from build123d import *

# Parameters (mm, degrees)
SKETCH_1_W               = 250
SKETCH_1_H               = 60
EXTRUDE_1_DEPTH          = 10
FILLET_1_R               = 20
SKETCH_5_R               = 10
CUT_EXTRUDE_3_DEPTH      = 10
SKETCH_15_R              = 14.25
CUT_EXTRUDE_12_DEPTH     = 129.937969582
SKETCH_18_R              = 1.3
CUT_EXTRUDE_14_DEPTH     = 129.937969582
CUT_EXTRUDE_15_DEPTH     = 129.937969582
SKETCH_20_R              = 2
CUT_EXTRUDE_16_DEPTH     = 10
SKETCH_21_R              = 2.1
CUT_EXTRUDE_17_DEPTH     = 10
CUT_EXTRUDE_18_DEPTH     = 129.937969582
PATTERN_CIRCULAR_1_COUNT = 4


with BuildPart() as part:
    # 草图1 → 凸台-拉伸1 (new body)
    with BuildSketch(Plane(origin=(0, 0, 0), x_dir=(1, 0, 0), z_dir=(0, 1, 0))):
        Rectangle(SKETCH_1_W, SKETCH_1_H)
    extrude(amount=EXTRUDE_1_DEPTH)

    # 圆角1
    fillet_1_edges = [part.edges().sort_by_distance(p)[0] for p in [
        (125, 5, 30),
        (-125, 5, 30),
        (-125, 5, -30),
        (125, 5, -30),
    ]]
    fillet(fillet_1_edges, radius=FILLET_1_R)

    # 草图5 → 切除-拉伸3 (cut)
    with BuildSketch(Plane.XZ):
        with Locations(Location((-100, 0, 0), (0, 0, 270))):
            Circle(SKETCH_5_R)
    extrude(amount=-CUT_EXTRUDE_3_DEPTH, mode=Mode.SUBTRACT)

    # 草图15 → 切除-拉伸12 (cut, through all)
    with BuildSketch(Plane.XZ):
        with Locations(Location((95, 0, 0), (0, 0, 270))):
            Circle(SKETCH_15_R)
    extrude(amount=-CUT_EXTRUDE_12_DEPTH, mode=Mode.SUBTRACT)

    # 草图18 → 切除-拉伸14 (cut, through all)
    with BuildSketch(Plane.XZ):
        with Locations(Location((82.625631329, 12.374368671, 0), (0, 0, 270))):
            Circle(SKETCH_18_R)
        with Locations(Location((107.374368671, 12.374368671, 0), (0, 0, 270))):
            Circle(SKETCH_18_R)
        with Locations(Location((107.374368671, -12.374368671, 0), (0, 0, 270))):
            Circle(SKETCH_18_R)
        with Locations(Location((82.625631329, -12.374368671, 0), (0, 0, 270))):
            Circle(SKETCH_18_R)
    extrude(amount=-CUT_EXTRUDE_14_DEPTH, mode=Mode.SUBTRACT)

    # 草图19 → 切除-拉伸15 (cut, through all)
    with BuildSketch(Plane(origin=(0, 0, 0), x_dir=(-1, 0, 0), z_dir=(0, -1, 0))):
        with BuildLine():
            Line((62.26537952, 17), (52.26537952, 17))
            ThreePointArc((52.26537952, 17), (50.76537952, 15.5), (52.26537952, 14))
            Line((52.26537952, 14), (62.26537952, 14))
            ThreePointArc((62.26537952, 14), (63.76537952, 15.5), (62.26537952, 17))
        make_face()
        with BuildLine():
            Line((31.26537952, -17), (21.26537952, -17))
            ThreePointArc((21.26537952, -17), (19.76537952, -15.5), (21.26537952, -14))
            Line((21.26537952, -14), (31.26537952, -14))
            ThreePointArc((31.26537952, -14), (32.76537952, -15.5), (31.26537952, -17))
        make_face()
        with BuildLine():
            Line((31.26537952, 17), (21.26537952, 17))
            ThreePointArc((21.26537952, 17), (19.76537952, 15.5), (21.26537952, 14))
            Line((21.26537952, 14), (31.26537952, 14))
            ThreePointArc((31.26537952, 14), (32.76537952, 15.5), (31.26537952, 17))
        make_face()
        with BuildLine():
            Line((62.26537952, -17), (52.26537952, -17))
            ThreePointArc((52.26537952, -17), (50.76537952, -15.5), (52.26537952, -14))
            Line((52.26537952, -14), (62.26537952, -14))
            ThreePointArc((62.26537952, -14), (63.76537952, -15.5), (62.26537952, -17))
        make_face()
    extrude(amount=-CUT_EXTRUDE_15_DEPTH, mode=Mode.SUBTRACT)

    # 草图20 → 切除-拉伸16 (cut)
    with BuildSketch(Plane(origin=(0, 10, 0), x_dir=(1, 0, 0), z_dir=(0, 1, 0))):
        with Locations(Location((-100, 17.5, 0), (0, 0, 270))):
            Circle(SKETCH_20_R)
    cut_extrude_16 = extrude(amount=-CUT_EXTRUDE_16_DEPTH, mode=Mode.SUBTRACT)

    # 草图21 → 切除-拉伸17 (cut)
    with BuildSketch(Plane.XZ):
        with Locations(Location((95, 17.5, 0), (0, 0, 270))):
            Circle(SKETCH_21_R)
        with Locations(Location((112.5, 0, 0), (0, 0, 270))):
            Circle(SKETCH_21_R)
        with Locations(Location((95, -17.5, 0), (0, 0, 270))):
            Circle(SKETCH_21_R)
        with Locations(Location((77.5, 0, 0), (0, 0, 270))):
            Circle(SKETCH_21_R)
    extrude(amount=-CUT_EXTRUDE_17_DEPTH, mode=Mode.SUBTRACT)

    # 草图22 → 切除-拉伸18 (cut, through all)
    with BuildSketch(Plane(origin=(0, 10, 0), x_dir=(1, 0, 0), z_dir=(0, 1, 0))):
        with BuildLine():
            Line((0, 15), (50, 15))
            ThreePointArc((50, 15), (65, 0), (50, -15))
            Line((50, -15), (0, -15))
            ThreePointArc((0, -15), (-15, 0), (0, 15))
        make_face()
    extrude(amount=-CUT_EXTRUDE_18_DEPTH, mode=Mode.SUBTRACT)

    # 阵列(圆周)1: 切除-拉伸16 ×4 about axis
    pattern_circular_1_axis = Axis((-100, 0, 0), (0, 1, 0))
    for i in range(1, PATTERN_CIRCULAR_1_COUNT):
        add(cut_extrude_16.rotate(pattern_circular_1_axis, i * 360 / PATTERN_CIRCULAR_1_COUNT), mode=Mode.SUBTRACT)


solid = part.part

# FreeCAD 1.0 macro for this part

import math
import FreeCAD as App
import Part
import Sketcher
from FreeCAD import Vector


def edges_at(feature, points):
    """Names of the edges that pass closest to the given points."""
    edges = feature.Shape.Edges
    near = lambda p: min(range(len(edges)), key=lambda i: edges[i].distToShape(Part.Vertex(*p))[0])
    return sorted({f"Edge{near(p) + 1}" for p in points})


def add_polygon(sketch, points):
    """Adds a closed chain of lines whose ends are joined by coincident constraints."""
    first, n = sketch.GeometryCount, len(points)
    for a, b in zip(points, points[1:] + points[:1]):
        sketch.addGeometry(Part.LineSegment(App.Vector(*a, 0), App.Vector(*b, 0)), False)
    for i in range(n):
        sketch.addConstraint(Sketcher.Constraint("Coincident", first + i, 2, first + (i + 1) % n, 1))

doc = App.newDocument("Part")
body = doc.addObject("PartDesign::Body", "Body")

# Sketch on XZ plane
sketch1 = body.newObject("Sketcher::SketchObject", "Sketch")
sketch1.AttachmentSupport = (doc.getObject("XZ_Plane"), [""])
sketch1.MapMode = "FlatFace"
add_polygon(sketch1, [(-125, -30), (-125, 30), (125, 30), (125, -30)])  # lines 0-3
sketch1.addConstraint([
    Sketcher.Constraint("Vertical", 0),
    Sketcher.Constraint("Horizontal", 1),
    Sketcher.Constraint("Vertical", 2),
    Sketcher.Constraint("Horizontal", 3),
    Sketcher.Constraint("Symmetric", 0, 2, 2, 2, -1, 1),
    Sketcher.Constraint("DistanceX", 1, 1, 1, 2, 250.0),
    Sketcher.Constraint("DistanceY", 0, 1, 0, 2, 60.0),
])
pad1 = body.newObject("PartDesign::Pad", "Pad")
pad1.Profile = sketch1
pad1.Length = 10
pad1.Reversed = True
doc.recompute()

fillet = body.newObject("PartDesign::Fillet", "Fillet")
fillet.Base = (pad1, edges_at(pad1, [
    (125, 5, 30),
    (-125, 5, 30),
    (-125, 5, -30),
    (125, 5, -30),
]))
fillet.Radius = 20

# Sketch on XZ plane
sketch2 = body.newObject("Sketcher::SketchObject", "Sketch001")
sketch2.AttachmentSupport = (doc.getObject("XZ_Plane"), [""])
sketch2.MapMode = "FlatFace"
sketch2.addGeometry(Part.Circle(Vector(-100, 0, 0), Vector(0, 0, 1), 10), False)
sketch2.addConstraint([
    Sketcher.Constraint("PointOnObject", 0, 3, -1),
    Sketcher.Constraint("Diameter", 0, 20.0),
    Sketcher.Constraint("DistanceX", 0, 3, -1, 1, 100.0),
])
pocket1 = body.newObject("PartDesign::Pocket", "Pocket")
pocket1.Profile = sketch2
pocket1.Length = 10

# Sketch on XZ plane
sketch3 = body.newObject("Sketcher::SketchObject", "Sketch002")
sketch3.AttachmentSupport = (doc.getObject("XZ_Plane"), [""])
sketch3.MapMode = "FlatFace"
sketch3.addGeometry(Part.Circle(Vector(95, 0, 0), Vector(0, 0, 1), 14), False)
sketch3.addConstraint([
    Sketcher.Constraint("PointOnObject", 0, 3, -1),
    Sketcher.Constraint("Diameter", 0, 28.5),
    Sketcher.Constraint("DistanceX", -1, 1, 0, 3, 95.0),
])
pocket2 = body.newObject("PartDesign::Pocket", "Pocket001")
pocket2.Profile = sketch3
pocket2.Type = "ThroughAll"

# Sketch on XZ plane
sketch4 = body.newObject("Sketcher::SketchObject", "Sketch003")
sketch4.AttachmentSupport = (doc.getObject("XZ_Plane"), [""])
sketch4.MapMode = "FlatFace"
sketch4.addGeometry([
    Part.Circle(Vector(82.6, 12.4, 0), Vector(0, 0, 1), 1.3),
    Part.Circle(Vector(107.4, 12.4, 0), Vector(0, 0, 1), 1.3),
    Part.Circle(Vector(107.4, -12.4, 0), Vector(0, 0, 1), 1.3),
    Part.Circle(Vector(82.6, -12.4, 0), Vector(0, 0, 1), 1.3),
], False)
sketch4.addConstraint([
    Sketcher.Constraint("Equal", 0, 1),
    Sketcher.Constraint("Equal", 1, 2),
    Sketcher.Constraint("Equal", 2, 3),
    Sketcher.Constraint("Symmetric", 1, 3, 2, 3, -1),
    Sketcher.Constraint("Symmetric", 0, 3, 3, 3, -1),
    Sketcher.Constraint("Horizontal", 0, 3, 1, 3),
    Sketcher.Constraint("Diameter", 0, 2.6),
    Sketcher.Constraint("DistanceX", -1, 1, 0, 3, 82.625631),
    Sketcher.Constraint("DistanceY", -1, 1, 0, 3, 12.374369),
    Sketcher.Constraint("DistanceX", -1, 1, 1, 3, 107.374369),
])
pocket3 = body.newObject("PartDesign::Pocket", "Pocket002")
pocket3.Profile = sketch4
pocket3.Type = "ThroughAll"

# Sketch on XZ plane
sketch5 = body.newObject("Sketcher::SketchObject", "Sketch004")
sketch5.AttachmentSupport = (doc.getObject("XZ_Plane"), [""])
sketch5.MapMode = "FlatFace"
sketch5.addGeometry([
    Part.LineSegment(Vector(-62.3, -17, 0), Vector(-52.3, -17, 0)),  # 0
    Part.ArcOfCircle(Part.Circle(Vector(-52.3, -15.5, 0), Vector(0, 0, 1), 1.5), math.radians(-90), math.radians(90)),  # 1
    Part.LineSegment(Vector(-52.3, -14, 0), Vector(-62.3, -14, 0)),  # 2
    Part.ArcOfCircle(Part.Circle(Vector(-62.3, -15.5, 0), Vector(0, 0, 1), 1.5), math.radians(90), math.radians(270)),  # 3
    Part.LineSegment(Vector(-21.3, 17, 0), Vector(-31.3, 17, 0)),  # 4
    Part.ArcOfCircle(Part.Circle(Vector(-31.3, 15.5, 0), Vector(0, 0, 1), 1.5), math.radians(90), math.radians(270)),  # 5
    Part.LineSegment(Vector(-31.3, 14, 0), Vector(-21.3, 14, 0)),  # 6
    Part.ArcOfCircle(Part.Circle(Vector(-21.3, 15.5, 0), Vector(0, 0, 1), 1.5), math.radians(-90), math.radians(90)),  # 7
    Part.LineSegment(Vector(-31.3, -17, 0), Vector(-21.3, -17, 0)),  # 8
    Part.ArcOfCircle(Part.Circle(Vector(-21.3, -15.5, 0), Vector(0, 0, 1), 1.5), math.radians(-90), math.radians(90)),  # 9
    Part.LineSegment(Vector(-21.3, -14, 0), Vector(-31.3, -14, 0)),  # 10
    Part.ArcOfCircle(Part.Circle(Vector(-31.3, -15.5, 0), Vector(0, 0, 1), 1.5), math.radians(90), math.radians(270)),  # 11
    Part.LineSegment(Vector(-52.3, 17, 0), Vector(-62.3, 17, 0)),  # 12
    Part.ArcOfCircle(Part.Circle(Vector(-62.3, 15.5, 0), Vector(0, 0, 1), 1.5), math.radians(90), math.radians(270)),  # 13
    Part.LineSegment(Vector(-62.3, 14, 0), Vector(-52.3, 14, 0)),  # 14
    Part.ArcOfCircle(Part.Circle(Vector(-52.3, 15.5, 0), Vector(0, 0, 1), 1.5), math.radians(-90), math.radians(90)),  # 15
], False)
sketch5.addConstraint([
    Sketcher.Constraint("Tangent", 0, 2, 1, 1),
    Sketcher.Constraint("Tangent", 1, 2, 2, 1),
    Sketcher.Constraint("Tangent", 2, 2, 3, 1),
    Sketcher.Constraint("Tangent", 3, 2, 0, 1),
    Sketcher.Constraint("Tangent", 4, 2, 5, 1),
    Sketcher.Constraint("Tangent", 5, 2, 6, 1),
    Sketcher.Constraint("Tangent", 6, 2, 7, 1),
    Sketcher.Constraint("Tangent", 7, 2, 4, 1),
    Sketcher.Constraint("Tangent", 8, 2, 9, 1),
    Sketcher.Constraint("Tangent", 9, 2, 10, 1),
    Sketcher.Constraint("Tangent", 10, 2, 11, 1),
    Sketcher.Constraint("Tangent", 11, 2, 8, 1),
    Sketcher.Constraint("Tangent", 12, 2, 13, 1),
    Sketcher.Constraint("Tangent", 13, 2, 14, 1),
    Sketcher.Constraint("Tangent", 14, 2, 15, 1),
    Sketcher.Constraint("Tangent", 15, 2, 12, 1),
    Sketcher.Constraint("Horizontal", 0),
    Sketcher.Constraint("Horizontal", 2),
    Sketcher.Constraint("Horizontal", 4),
    Sketcher.Constraint("Horizontal", 6),
    Sketcher.Constraint("Horizontal", 8),
    Sketcher.Constraint("Horizontal", 10),
    Sketcher.Constraint("Horizontal", 12),
    Sketcher.Constraint("Horizontal", 14),
    Sketcher.Constraint("Equal", 3, 5),
    Sketcher.Constraint("Equal", 7, 9),
    Sketcher.Constraint("Equal", 11, 13),
    Sketcher.Constraint("Symmetric", 7, 3, 9, 3, -1),
    Sketcher.Constraint("Symmetric", 3, 3, 13, 3, -1),
    Sketcher.Constraint("Horizontal", 3, 3, 9, 3),
    Sketcher.Constraint("Vertical", 5, 3, 11, 3),
    Sketcher.Constraint("Vertical", 1, 3, 15, 3),
    Sketcher.Constraint("Equal", 2, 4),
    Sketcher.Constraint("Radius", 1, 1.5),
    Sketcher.Constraint("DistanceX", 0, 1, 0, 2, 10.0),
    Sketcher.Constraint("DistanceY", 0, 2, -1, 1, 17.0),
    Sketcher.Constraint("DistanceX", 1, 3, 5, 3, 21.0),
    Sketcher.Constraint("DistanceX", 1, 3, -1, 1, 52.26538),
])
pocket4 = body.newObject("PartDesign::Pocket", "Pocket003")
pocket4.Profile = sketch5
pocket4.Type = "ThroughAll"

# Sketch on XZ plane
sketch6 = body.newObject("Sketcher::SketchObject", "Sketch005")
sketch6.AttachmentSupport = (doc.getObject("XZ_Plane"), [""])
sketch6.MapMode = "FlatFace"
sketch6.AttachmentOffset = App.Placement(Vector(0, 0, -10), App.Rotation())
sketch6.addGeometry(Part.Circle(Vector(-100, -17.5, 0), Vector(0, 0, 1), 2), False)
sketch6.addConstraint([
    Sketcher.Constraint("Diameter", 0, 4.0),
    Sketcher.Constraint("DistanceX", 0, 3, -1, 1, 100.0),
    Sketcher.Constraint("DistanceY", 0, 3, -1, 1, 17.5),
])
pocket5 = body.newObject("PartDesign::Pocket", "Pocket004")
pocket5.Profile = sketch6
pocket5.Length = 10
pocket5.Reversed = True

# Sketch on XZ plane
sketch7 = body.newObject("Sketcher::SketchObject", "Sketch006")
sketch7.AttachmentSupport = (doc.getObject("XZ_Plane"), [""])
sketch7.MapMode = "FlatFace"
sketch7.addGeometry([
    Part.Circle(Vector(95, 17.5, 0), Vector(0, 0, 1), 2.1),
    Part.Circle(Vector(112.5, 0, 0), Vector(0, 0, 1), 2.1),
    Part.Circle(Vector(95, -17.5, 0), Vector(0, 0, 1), 2.1),
    Part.Circle(Vector(77.5, 0, 0), Vector(0, 0, 1), 2.1),
], False)
sketch7.addConstraint([
    Sketcher.Constraint("Equal", 0, 1),
    Sketcher.Constraint("Equal", 1, 2),
    Sketcher.Constraint("Equal", 2, 3),
    Sketcher.Constraint("Symmetric", 0, 3, 2, 3, -1),
    Sketcher.Constraint("PointOnObject", 1, 3, -1),
    Sketcher.Constraint("PointOnObject", 3, 3, -1),
    Sketcher.Constraint("Diameter", 0, 4.2),
    Sketcher.Constraint("DistanceX", -1, 1, 0, 3, 95.0),
    Sketcher.Constraint("DistanceY", 2, 3, 0, 3, 35.0),
    Sketcher.Constraint("DistanceX", 3, 3, 1, 3, 35.0),
    Sketcher.Constraint("DistanceX", -1, 1, 1, 3, 112.5),
])
pocket6 = body.newObject("PartDesign::Pocket", "Pocket005")
pocket6.Profile = sketch7
pocket6.Length = 10

# Sketch on XZ plane
sketch8 = body.newObject("Sketcher::SketchObject", "Sketch007")
sketch8.AttachmentSupport = (doc.getObject("XZ_Plane"), [""])
sketch8.MapMode = "FlatFace"
sketch8.AttachmentOffset = App.Placement(Vector(0, 0, -10), App.Rotation())
sketch8.addGeometry([
    Part.LineSegment(Vector(50, -15, 0), Vector(0, -15, 0)),
    Part.ArcOfCircle(Part.Circle(Vector(0, 0, 0), Vector(0, 0, 1), 15), math.radians(90), math.radians(270)),
    Part.LineSegment(Vector(0, 15, 0), Vector(50, 15, 0)),
    Part.ArcOfCircle(Part.Circle(Vector(50, 0, 0), Vector(0, 0, 1), 15), math.radians(-90), math.radians(90)),
], False)
sketch8.addConstraint([
    Sketcher.Constraint("Tangent", 0, 2, 1, 2),
    Sketcher.Constraint("Tangent", 1, 1, 2, 1),
    Sketcher.Constraint("Tangent", 2, 2, 3, 2),
    Sketcher.Constraint("Tangent", 3, 1, 0, 1),
    Sketcher.Constraint("Horizontal", 0),
    Sketcher.Constraint("Horizontal", 2),
    Sketcher.Constraint("Coincident", 1, 3, -1, 1),
    Sketcher.Constraint("Radius", 1, 15.0),
    Sketcher.Constraint("DistanceX", 0, 2, 0, 1, 50.0),
])
pocket7 = body.newObject("PartDesign::Pocket", "Pocket006")
pocket7.Profile = sketch8
pocket7.Type = "ThroughAll"
pocket7.Reversed = True
doc.recompute()

datumline = body.newObject("PartDesign::Line", "DatumLine")
datumline.Placement = App.Placement(Vector(-100, 0, 0), App.Rotation(Vector(0, 0, 1), Vector(0, 1, 0)))
polarpattern = body.newObject("PartDesign::PolarPattern", "PolarPattern")
polarpattern.Originals = [pocket5]
polarpattern.Axis = (datumline, [""])
polarpattern.Angle = 360
polarpattern.Occurrences = 4
body.Tip = polarpattern

doc.recompute()
